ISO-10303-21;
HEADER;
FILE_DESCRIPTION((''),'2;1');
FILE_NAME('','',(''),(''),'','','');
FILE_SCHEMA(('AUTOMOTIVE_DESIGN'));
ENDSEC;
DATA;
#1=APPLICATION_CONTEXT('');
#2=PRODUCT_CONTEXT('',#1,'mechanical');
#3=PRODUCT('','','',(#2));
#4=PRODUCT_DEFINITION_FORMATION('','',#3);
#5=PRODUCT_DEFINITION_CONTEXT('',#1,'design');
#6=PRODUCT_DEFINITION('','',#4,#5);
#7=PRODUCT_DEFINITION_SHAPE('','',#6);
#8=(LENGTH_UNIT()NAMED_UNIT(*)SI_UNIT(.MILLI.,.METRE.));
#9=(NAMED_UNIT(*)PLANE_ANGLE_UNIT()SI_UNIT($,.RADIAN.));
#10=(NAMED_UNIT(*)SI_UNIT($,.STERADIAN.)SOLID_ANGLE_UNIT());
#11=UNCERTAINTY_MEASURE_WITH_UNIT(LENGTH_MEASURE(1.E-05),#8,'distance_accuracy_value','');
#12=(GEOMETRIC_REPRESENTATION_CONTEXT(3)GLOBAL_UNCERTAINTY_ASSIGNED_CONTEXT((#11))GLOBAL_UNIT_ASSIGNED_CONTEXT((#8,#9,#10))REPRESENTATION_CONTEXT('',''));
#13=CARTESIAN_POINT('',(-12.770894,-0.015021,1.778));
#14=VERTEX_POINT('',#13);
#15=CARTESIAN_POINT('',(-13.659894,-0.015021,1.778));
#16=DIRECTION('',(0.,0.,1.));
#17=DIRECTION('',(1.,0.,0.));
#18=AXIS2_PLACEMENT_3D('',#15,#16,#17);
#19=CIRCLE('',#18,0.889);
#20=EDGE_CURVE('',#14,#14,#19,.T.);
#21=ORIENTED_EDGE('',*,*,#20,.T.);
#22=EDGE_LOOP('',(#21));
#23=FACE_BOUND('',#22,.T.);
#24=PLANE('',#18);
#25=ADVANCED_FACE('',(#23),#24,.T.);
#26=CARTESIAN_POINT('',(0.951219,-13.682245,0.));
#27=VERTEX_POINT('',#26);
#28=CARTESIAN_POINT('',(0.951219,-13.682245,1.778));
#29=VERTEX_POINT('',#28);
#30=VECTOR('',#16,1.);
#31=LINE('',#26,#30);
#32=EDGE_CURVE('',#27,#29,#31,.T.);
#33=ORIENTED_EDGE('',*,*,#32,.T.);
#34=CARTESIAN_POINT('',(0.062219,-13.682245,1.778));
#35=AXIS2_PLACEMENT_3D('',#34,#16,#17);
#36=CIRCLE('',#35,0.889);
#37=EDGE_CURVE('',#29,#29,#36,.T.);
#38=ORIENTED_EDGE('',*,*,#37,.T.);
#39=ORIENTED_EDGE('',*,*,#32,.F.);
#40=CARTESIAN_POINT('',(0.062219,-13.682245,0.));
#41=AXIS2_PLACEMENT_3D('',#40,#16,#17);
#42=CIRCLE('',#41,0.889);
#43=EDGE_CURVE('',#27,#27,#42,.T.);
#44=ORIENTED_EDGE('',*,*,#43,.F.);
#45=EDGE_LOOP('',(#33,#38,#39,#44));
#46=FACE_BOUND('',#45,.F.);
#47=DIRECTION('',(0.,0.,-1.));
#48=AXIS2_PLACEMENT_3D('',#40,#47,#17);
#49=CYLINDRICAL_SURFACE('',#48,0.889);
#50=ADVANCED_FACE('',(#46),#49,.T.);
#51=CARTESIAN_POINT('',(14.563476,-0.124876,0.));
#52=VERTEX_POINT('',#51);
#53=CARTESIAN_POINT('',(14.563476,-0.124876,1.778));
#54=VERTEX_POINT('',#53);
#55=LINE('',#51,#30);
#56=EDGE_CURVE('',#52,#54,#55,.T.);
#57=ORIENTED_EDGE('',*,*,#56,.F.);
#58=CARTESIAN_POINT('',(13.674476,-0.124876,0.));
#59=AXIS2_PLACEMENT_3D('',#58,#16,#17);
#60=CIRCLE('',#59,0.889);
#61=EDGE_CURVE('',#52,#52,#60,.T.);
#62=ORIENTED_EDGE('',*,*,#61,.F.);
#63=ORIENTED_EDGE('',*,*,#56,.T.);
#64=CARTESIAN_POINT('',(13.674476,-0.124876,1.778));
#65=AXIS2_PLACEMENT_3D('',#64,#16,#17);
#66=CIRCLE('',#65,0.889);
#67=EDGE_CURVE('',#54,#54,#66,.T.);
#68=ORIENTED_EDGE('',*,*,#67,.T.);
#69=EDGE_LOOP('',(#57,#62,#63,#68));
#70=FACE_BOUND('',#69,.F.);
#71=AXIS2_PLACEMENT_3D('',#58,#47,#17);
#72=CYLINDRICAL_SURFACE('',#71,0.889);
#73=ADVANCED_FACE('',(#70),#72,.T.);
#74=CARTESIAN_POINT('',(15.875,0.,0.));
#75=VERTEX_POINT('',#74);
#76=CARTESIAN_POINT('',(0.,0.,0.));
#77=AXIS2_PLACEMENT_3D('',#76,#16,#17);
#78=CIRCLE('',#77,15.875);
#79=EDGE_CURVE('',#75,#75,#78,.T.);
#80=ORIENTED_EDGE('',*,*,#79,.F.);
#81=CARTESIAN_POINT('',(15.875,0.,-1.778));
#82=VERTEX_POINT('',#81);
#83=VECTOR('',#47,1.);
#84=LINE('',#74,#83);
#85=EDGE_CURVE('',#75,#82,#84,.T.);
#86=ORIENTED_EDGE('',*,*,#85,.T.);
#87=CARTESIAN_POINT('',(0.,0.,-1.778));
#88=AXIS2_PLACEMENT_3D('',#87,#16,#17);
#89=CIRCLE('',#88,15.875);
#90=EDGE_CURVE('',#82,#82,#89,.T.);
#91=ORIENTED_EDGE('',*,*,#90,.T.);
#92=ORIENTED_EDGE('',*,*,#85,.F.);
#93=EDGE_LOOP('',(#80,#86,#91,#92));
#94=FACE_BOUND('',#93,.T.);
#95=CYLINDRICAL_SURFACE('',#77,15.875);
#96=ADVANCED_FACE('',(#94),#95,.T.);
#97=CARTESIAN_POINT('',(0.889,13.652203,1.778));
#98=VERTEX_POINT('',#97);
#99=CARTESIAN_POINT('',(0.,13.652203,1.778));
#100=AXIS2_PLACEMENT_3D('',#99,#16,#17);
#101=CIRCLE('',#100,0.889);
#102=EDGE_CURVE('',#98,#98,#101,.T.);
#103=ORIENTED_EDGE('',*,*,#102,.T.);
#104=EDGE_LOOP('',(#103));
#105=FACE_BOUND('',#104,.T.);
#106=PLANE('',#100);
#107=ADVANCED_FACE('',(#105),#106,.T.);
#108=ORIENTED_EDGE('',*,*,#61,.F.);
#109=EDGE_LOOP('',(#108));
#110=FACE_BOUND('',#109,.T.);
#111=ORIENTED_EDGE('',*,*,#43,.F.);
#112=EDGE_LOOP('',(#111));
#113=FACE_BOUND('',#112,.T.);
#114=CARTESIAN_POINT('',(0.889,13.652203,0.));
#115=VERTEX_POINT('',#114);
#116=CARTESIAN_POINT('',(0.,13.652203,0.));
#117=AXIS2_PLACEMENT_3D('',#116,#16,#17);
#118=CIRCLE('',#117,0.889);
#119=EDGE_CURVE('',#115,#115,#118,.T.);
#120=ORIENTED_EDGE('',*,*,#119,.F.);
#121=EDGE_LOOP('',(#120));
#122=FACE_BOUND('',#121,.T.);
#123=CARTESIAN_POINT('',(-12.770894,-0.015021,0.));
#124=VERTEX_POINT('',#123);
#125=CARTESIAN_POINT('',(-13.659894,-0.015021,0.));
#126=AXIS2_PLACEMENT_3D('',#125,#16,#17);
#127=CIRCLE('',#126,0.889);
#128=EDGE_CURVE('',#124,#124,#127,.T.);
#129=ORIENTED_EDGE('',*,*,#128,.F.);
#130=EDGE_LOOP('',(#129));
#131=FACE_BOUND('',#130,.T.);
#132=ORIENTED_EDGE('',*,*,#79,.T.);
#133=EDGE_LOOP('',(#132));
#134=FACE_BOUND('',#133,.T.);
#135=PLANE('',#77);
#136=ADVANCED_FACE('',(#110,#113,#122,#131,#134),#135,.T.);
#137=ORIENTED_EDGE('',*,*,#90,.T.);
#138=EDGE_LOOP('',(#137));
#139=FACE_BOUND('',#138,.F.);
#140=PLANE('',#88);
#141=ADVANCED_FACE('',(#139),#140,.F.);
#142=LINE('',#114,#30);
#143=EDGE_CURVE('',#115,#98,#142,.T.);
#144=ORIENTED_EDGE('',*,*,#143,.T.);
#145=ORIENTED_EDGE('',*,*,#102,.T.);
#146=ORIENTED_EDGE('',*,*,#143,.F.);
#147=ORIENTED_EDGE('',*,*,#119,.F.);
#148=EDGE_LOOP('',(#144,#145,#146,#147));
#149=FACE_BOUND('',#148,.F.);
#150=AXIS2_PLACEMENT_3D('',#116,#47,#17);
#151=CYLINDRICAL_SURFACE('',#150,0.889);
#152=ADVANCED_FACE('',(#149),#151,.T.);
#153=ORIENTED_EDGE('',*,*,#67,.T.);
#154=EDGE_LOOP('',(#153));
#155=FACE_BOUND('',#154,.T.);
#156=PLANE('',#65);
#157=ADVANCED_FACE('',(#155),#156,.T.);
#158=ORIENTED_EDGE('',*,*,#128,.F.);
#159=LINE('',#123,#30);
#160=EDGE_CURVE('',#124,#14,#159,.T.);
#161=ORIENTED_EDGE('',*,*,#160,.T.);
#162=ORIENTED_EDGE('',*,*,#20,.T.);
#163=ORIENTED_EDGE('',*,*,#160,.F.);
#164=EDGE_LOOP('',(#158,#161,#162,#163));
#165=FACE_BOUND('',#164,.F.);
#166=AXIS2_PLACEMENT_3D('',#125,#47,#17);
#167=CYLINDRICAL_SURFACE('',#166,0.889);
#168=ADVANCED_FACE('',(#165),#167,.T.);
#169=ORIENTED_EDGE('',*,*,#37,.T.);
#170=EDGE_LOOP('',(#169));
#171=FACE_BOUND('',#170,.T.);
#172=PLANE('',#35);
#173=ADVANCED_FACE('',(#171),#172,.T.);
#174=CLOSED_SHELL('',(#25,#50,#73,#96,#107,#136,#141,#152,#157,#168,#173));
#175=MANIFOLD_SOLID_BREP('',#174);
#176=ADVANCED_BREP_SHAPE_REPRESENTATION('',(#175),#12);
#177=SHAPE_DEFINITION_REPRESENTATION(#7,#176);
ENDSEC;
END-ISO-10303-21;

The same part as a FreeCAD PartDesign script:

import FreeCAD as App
import Part
import Sketcher
from FreeCAD import Vector
Q = App.Units.Quantity

doc = App.newDocument("Part")
body = doc.addObject("PartDesign::Body", "Body")

sketch1 = doc.addObject("Sketcher::SketchObject", "Sketch")
body.addObject(sketch1)
sketch1.AttachmentSupport = (doc.XY_Plane, [""])
sketch1.MapMode = "FlatFace"
sketch1.addGeometry(Part.Circle(Vector(0, 0, 0), Vector(0, 0, 1), 15.875), False)
sketch1.addConstraint([
    Sketcher.Constraint("Coincident", 0, 3, -1, 1),
    Sketcher.Constraint("Diameter", 0, Q("1.25 in")),
])
pad1 = doc.addObject("PartDesign::Pad", "Pad")
body.addObject(pad1)
pad1.Profile = sketch1
pad1.Length = Q("0.07 in")
pad1.Reversed = True

sketch2 = doc.addObject("Sketcher::SketchObject", "Sketch001")
body.addObject(sketch2)
sketch2.AttachmentSupport = (doc.XY_Plane, [""])
sketch2.MapMode = "FlatFace"
sketch2.addGeometry([
    Part.Circle(Vector(0, 13.652203, 0), Vector(0, 0, 1), 0.889),
    Part.Circle(Vector(-13.659894, -0.015021, 0), Vector(0, 0, 1), 0.889),
    Part.Circle(Vector(0.062219, -13.682245, 0), Vector(0, 0, 1), 0.889),
    Part.Circle(Vector(13.674476, -0.124876, 0), Vector(0, 0, 1), 0.889),
], False)
sketch2.addConstraint([
    Sketcher.Constraint("Equal", 0, 1),
    Sketcher.Constraint("Equal", 1, 2),
    Sketcher.Constraint("Equal", 2, 3),
    Sketcher.Constraint("PointOnObject", 0, 3, -2),
    Sketcher.Constraint("Diameter", 0, Q("0.07 in")),
    Sketcher.Constraint("DistanceY", 1, 3, -1, 1, 0.015021),
    Sketcher.Constraint("DistanceX", -1, 1, 2, 3, 0.062219),
    Sketcher.Constraint("DistanceY", 2, 3, 0, 3, 27.334448),
    Sketcher.Constraint("DistanceY", 2, 3, 3, 3, 13.557369),
    Sketcher.Constraint("DistanceX", 1, 3, 3, 3, 27.33437),
    Sketcher.Constraint("DistanceY", -1, 1, 0, 3, 13.652203),
    Sketcher.Constraint("DistanceX", 1, 3, -1, 1, 13.659894),
])
pad2 = doc.addObject("PartDesign::Pad", "Pad001")
body.addObject(pad2)
pad2.Profile = sketch2
pad2.Length = Q("0.07 in")

doc.recompute()
